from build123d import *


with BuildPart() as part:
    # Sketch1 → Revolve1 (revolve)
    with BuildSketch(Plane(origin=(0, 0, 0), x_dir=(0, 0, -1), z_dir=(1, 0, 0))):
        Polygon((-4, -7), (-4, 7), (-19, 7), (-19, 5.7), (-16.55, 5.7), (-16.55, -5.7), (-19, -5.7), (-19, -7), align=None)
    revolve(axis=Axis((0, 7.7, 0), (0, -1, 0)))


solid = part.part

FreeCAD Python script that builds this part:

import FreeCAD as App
import Part
import Sketcher


def add_polygon(sketch, points):
    """Adds a closed chain of lines whose ends are joined by coincident constraints."""
    first, n = sketch.GeometryCount, len(points)
    for a, b in zip(points, points[1:] + points[:1]):
        sketch.addGeometry(Part.LineSegment(App.Vector(*a, 0), App.Vector(*b, 0)), False)
    for i in range(n):
        sketch.addConstraint(Sketcher.Constraint("Coincident", first + i, 2, first + (i + 1) % n, 1))

doc = App.newDocument("Part")
params = doc.addObject("Spreadsheet::Sheet", "Params")
for row, (alias, value) in enumerate([
    ("sketch1_width", "14 mm"),
    ("sketch1_height", "15 mm"),
    ("sketch1_width2", "1.3 mm"),
    ("sketch1_height2", "2.45 mm"),
    ("revolution_angle", "360 deg"),
], start=1):
    params.set(f"A{row}", alias)
    params.set(f"B{row}", "=" + value)
    params.setAlias(f"B{row}", alias)

body = doc.addObject("PartDesign::Body", "Body")

sketch1 = body.newObject("Sketcher::SketchObject", "Sketch")
sketch1.AttachmentSupport = (doc.getObject("YZ_Plane"), [""])
sketch1.MapMode = "FlatFace"
add_polygon(sketch1, [(-7, 4), (7, 4), (7, 19), (5.7, 19), (5.7, 16.6), (-5.7, 16.6), (-5.7, 19), (-7, 19)])
sketch1.addConstraint(Sketcher.Constraint("Horizontal", 0))
sketch1.addConstraint(Sketcher.Constraint("Vertical", 1))
sketch1.addConstraint(Sketcher.Constraint("Horizontal", 2))
sketch1.addConstraint(Sketcher.Constraint("Vertical", 3))
sketch1.addConstraint(Sketcher.Constraint("Horizontal", 4))
sketch1.addConstraint(Sketcher.Constraint("Vertical", 5))
sketch1.addConstraint(Sketcher.Constraint("Horizontal", 6))
sketch1.addConstraint(Sketcher.Constraint("Vertical", 7))
sketch1.addConstraint(Sketcher.Constraint("Symmetric", 2, 2, 5, 2, -2))
sketch1.addConstraint(Sketcher.Constraint("Equal", 2, 6))
sketch1.addConstraint(Sketcher.Constraint("DistanceX", 0, 1, 0, 2, 14.0))
sketch1.addConstraint(Sketcher.Constraint("DistanceY", 1, 1, 1, 2, 15.0))
sketch1.addConstraint(Sketcher.Constraint("DistanceX", 2, 2, 2, 1, 1.3))
sketch1.addConstraint(Sketcher.Constraint("DistanceY", -1, 1, 0, 2, 4.0))
sketch1.addConstraint(Sketcher.Constraint("DistanceY", 3, 2, 3, 1, 2.45))
sketch1.setExpression("Constraints[18]", "Params.sketch1_width")
sketch1.setExpression("Constraints[19]", "Params.sketch1_height")
sketch1.setExpression("Constraints[20]", "Params.sketch1_width2")
sketch1.setExpression("Constraints[22]", "Params.sketch1_height2")
revolution = body.newObject("PartDesign::Revolution", "Revolution")
revolution.Profile = sketch1
revolution.ReferenceAxis = (sketch1, ["H_Axis"])
revolution.setExpression("Angle", "Params.revolution_angle")

doc.recompute()
